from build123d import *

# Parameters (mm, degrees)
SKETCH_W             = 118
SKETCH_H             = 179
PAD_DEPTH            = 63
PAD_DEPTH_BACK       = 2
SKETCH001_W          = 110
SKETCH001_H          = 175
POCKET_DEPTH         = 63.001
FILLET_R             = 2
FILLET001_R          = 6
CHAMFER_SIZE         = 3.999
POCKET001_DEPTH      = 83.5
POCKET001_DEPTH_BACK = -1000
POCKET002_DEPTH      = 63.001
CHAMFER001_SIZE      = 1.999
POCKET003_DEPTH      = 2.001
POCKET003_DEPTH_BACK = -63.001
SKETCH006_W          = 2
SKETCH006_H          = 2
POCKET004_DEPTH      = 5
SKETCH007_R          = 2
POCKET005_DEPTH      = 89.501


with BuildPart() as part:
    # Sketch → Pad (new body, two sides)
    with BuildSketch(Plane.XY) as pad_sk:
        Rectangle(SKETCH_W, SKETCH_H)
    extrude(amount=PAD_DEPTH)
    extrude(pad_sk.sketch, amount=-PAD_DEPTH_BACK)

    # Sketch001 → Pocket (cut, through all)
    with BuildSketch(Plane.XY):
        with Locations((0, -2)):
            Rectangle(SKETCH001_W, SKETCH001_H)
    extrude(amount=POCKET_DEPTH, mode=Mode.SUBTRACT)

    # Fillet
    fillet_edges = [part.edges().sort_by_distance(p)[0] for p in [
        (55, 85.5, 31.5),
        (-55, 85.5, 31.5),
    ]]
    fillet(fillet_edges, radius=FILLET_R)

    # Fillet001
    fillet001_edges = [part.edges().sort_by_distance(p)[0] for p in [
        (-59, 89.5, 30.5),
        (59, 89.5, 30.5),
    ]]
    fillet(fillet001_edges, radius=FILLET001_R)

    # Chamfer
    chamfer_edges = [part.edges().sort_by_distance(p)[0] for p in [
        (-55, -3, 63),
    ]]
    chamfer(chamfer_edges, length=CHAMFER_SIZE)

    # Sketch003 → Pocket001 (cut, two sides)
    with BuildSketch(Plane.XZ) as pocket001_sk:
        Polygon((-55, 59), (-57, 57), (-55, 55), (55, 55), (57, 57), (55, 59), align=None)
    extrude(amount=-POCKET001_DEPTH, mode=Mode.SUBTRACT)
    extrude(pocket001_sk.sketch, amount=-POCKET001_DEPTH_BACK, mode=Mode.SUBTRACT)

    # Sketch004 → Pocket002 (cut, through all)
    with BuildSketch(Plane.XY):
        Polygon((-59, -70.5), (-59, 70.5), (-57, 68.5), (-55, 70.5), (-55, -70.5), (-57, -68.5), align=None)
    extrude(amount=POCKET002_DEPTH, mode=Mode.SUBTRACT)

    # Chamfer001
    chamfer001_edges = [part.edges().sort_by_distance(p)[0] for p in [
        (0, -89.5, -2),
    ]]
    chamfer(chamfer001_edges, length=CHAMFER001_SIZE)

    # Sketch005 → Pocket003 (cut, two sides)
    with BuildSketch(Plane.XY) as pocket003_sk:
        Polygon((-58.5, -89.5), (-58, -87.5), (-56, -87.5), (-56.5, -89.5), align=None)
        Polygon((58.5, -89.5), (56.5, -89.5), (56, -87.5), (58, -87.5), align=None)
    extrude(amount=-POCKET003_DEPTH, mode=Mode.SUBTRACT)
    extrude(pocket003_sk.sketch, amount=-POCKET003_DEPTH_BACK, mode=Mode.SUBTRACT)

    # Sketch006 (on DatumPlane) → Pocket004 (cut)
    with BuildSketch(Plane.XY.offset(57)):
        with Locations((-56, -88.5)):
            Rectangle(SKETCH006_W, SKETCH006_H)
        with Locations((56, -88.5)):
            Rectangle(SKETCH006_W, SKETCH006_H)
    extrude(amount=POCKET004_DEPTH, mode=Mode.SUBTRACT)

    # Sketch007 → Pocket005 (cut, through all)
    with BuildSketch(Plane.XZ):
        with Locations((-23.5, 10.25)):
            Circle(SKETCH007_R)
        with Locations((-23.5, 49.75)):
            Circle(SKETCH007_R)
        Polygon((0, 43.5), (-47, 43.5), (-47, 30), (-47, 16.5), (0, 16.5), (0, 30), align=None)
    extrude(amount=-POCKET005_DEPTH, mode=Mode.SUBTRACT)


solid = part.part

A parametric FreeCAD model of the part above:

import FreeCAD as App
import Part
import Sketcher

V = App.Vector
Q = App.Units.Quantity


def edges_at(feature, points):
    """Names of the edges that pass closest to the given points."""
    edges = feature.Shape.Edges
    near = lambda p: min(range(len(edges)), key=lambda i: edges[i].distToShape(Part.Vertex(*p))[0])
    return sorted({f"Edge{near(p) + 1}" for p in points})

doc = App.newDocument("Part")
body = doc.addObject("PartDesign::Body", "Body")

# Sketch on XY plane
sketch1 = doc.addObject("Sketcher::SketchObject", "Sketch")
body.addObject(sketch1)
sketch1.AttachmentSupport = (doc.XY_Plane, [""])
sketch1.MapMode = "FlatFace"
sketch1.addGeometry([
    Part.LineSegment(V(-59, 90, 0), V(-59, -90, 0)),
    Part.LineSegment(V(-59, -90, 0), V(59, -90, 0)),
    Part.LineSegment(V(59, -90, 0), V(59, 90, 0)),
    Part.LineSegment(V(59, 90, 0), V(-59, 90, 0)),
], False)
sketch1.addConstraint([
    Sketcher.Constraint("Coincident", 0, 2, 1, 1),
    Sketcher.Constraint("Coincident", 1, 2, 2, 1),
    Sketcher.Constraint("Coincident", 2, 2, 3, 1),
    Sketcher.Constraint("Coincident", 3, 2, 0, 1),
    Sketcher.Constraint("Vertical", 0),
    Sketcher.Constraint("Horizontal", 1),
    Sketcher.Constraint("Vertical", 2),
    Sketcher.Constraint("Horizontal", 3),
    Sketcher.Constraint("Symmetric", 0, 2, 2, 2, -1, 1),
    Sketcher.Constraint("DistanceX", 1, 1, 1, 2, Q("118 mm")),
    Sketcher.Constraint("DistanceY", 0, 2, 0, 1, Q("179 mm")),
])
pad1 = doc.addObject("PartDesign::Pad", "Pad")
body.addObject(pad1)
pad1.Profile = sketch1
pad1.Type = "TwoLengths"
pad1.Length = 63
pad1.Length2 = 2

# Sketch on XY plane
sketch2 = doc.addObject("Sketcher::SketchObject", "Sketch001")
body.addObject(sketch2)
sketch2.AttachmentSupport = (doc.XY_Plane, [""])
sketch2.MapMode = "FlatFace"
sketch2.addGeometry([
    Part.LineSegment(V(-55, 86, 0), V(-55, -90, 0)),
    Part.LineSegment(V(-55, -90, 0), V(55, -90, 0)),
    Part.LineSegment(V(55, -90, 0), V(55, 86, 0)),
    Part.LineSegment(V(55, 86, 0), V(-55, 86, 0)),
], False)
sketch2.addConstraint([
    Sketcher.Constraint("Coincident", 0, 2, 1, 1),
    Sketcher.Constraint("Coincident", 1, 2, 2, 1),
    Sketcher.Constraint("Coincident", 2, 2, 3, 1),
    Sketcher.Constraint("Coincident", 3, 2, 0, 1),
    Sketcher.Constraint("Vertical", 0),
    Sketcher.Constraint("Horizontal", 1),
    Sketcher.Constraint("Vertical", 2),
    Sketcher.Constraint("Horizontal", 3),
    Sketcher.Constraint("DistanceX", 1, 1, 1, 2, Q("110 mm")),
    Sketcher.Constraint("DistanceY", 0, 2, 0, 1, Q("175 mm")),
    Sketcher.Constraint("DistanceX", 0, 2, -1, 1, Q("55 mm")),
    Sketcher.Constraint("DistanceY", 0, 2, -1, 1, Q("89.5 mm")),
])
pocket1 = doc.addObject("PartDesign::Pocket", "Pocket")
body.addObject(pocket1)
pocket1.Profile = sketch2
pocket1.Type = "ThroughAll"
pocket1.Reversed = True
doc.recompute()

fillet = doc.addObject("PartDesign::Fillet", "Fillet")
body.addObject(fillet)
fillet.Base = (pocket1, edges_at(pocket1, [(55, 85.5, 31.5), (-55, 85.5, 31.5)]))
fillet.Radius = 2
doc.recompute()

fillet2 = doc.addObject("PartDesign::Fillet", "Fillet001")
body.addObject(fillet2)
fillet2.Base = (fillet, edges_at(fillet, [(-59, 89.5, 30.5), (59, 89.5, 30.5)]))
fillet2.Radius = 6
doc.recompute()

chamfer = doc.addObject("PartDesign::Chamfer", "Chamfer")
body.addObject(chamfer)
chamfer.Base = (fillet2, edges_at(fillet2, [(-55, -3, 63)]))
chamfer.Size = 3.999

# Sketch on XZ plane
sketch3 = doc.addObject("Sketcher::SketchObject", "Sketch002")
body.addObject(sketch3)
sketch3.AttachmentSupport = (doc.XZ_Plane, [""])
sketch3.MapMode = "FlatFace"
sketch3.addGeometry([
    Part.LineSegment(V(-55, 59, 0), V(-57, 57, 0)),  # 0
    Part.LineSegment(V(-57, 57, 0), V(-55, 55, 0)),  # 1
    Part.LineSegment(V(-55, 55, 0), V(55, 55, 0)),  # 2
    Part.LineSegment(V(55, 55, 0), V(57, 57, 0)),  # 3
    Part.LineSegment(V(57, 57, 0), V(55, 59, 0)),  # 4
    Part.LineSegment(V(55, 59, 0), V(-55, 59, 0)),  # 5
], False)
sketch3.addConstraint([
    Sketcher.Constraint("Coincident", 0, 2, 1, 1),
    Sketcher.Constraint("Coincident", 1, 2, 2, 1),
    Sketcher.Constraint("Coincident", 2, 2, 3, 1),
    Sketcher.Constraint("Coincident", 3, 2, 4, 1),
    Sketcher.Constraint("Coincident", 4, 2, 5, 1),
    Sketcher.Constraint("Coincident", 5, 2, 0, 1),
    Sketcher.Constraint("Horizontal", 2),
    Sketcher.Constraint("Horizontal", 5),
    Sketcher.Constraint("Symmetric", 0, 2, 3, 2, -2),
    Sketcher.Constraint("Perpendicular", 0, 1),
    Sketcher.Constraint("Perpendicular", 1, 3),
    Sketcher.Constraint("Perpendicular", 3, 4),
    Sketcher.Constraint("Vertical", 2, 2, 4, 2),
    Sketcher.Constraint("Vertical", 1, 2, 5, 2),
    Sketcher.Constraint("DistanceX", 2, 1, 2, 2, Q("110 mm")),
    Sketcher.Constraint("DistanceX", 0, 2, -1, 1, Q("57 mm")),
    Sketcher.Constraint("DistanceY", -1, 1, 0, 2, Q("57 mm")),
])
pocket2 = doc.addObject("PartDesign::Pocket", "Pocket001")
body.addObject(pocket2)
pocket2.Profile = sketch3
pocket2.Type = "TwoLengths"
pocket2.Length = 83.5
pocket2.Length2 = 1000

# Sketch on XY plane
sketch4 = doc.addObject("Sketcher::SketchObject", "Sketch003")
body.addObject(sketch4)
sketch4.AttachmentSupport = (doc.XY_Plane, [""])
sketch4.MapMode = "FlatFace"
sketch4.addGeometry([
    Part.LineSegment(V(-59, 70.5, 0), V(-59, -70.5, 0)),  # 0
    Part.LineSegment(V(-59, -70.5, 0), V(-57, -68.5, 0)),  # 1
    Part.LineSegment(V(-57, -68.5, 0), V(-55, -70.5, 0)),  # 2
    Part.LineSegment(V(-55, -70.5, 0), V(-55, 70.5, 0)),  # 3
    Part.LineSegment(V(-55, 70.5, 0), V(-57, 68.5, 0)),  # 4
    Part.LineSegment(V(-57, 68.5, 0), V(-59, 70.5, 0)),  # 5
], False)
sketch4.addConstraint([
    Sketcher.Constraint("Coincident", 0, 2, 1, 1),
    Sketcher.Constraint("Coincident", 1, 2, 2, 1),
    Sketcher.Constraint("Coincident", 2, 2, 3, 1),
    Sketcher.Constraint("Coincident", 3, 2, 4, 1),
    Sketcher.Constraint("Coincident", 4, 2, 5, 1),
    Sketcher.Constraint("Coincident", 5, 2, 0, 1),
    Sketcher.Constraint("Vertical", 0),
    Sketcher.Constraint("Vertical", 3),
    Sketcher.Constraint("Symmetric", 1, 2, 4, 2, -1),
    Sketcher.Constraint("Perpendicular", 1, 2),
    Sketcher.Constraint("Perpendicular", 2, 4),
    Sketcher.Constraint("Perpendicular", 4, 5),
    Sketcher.Constraint("Horizontal", 0, 2, 2, 2),
    Sketcher.Constraint("Horizontal", 3, 2, 5, 2),
    Sketcher.Constraint("DistanceY", 0, 2, 0, 1, Q("141 mm")),
    Sketcher.Constraint("DistanceX", 0, 2, -1, 1, Q("59 mm")),
    Sketcher.Constraint("DistanceX", 1, 2, -1, 1, Q("57 mm")),
])
pocket3 = doc.addObject("PartDesign::Pocket", "Pocket002")
body.addObject(pocket3)
pocket3.Profile = sketch4
pocket3.Type = "ThroughAll"
pocket3.Reversed = True
doc.recompute()

chamfer2 = doc.addObject("PartDesign::Chamfer", "Chamfer001")
body.addObject(chamfer2)
chamfer2.Base = (pocket3, edges_at(pocket3, [(0, -89.5, -2)]))
chamfer2.Size = 1.999

# Sketch on XY plane
sketch5 = doc.addObject("Sketcher::SketchObject", "Sketch004")
body.addObject(sketch5)
sketch5.AttachmentSupport = (doc.XY_Plane, [""])
sketch5.MapMode = "FlatFace"
sketch5.addGeometry([
    Part.LineSegment(V(-58, -87.5, 0), V(-58.5, -89.5, 0)),  # 0
    Part.LineSegment(V(-58.5, -89.5, 0), V(-56.5, -89.5, 0)),  # 1
    Part.LineSegment(V(-56.5, -89.5, 0), V(-56, -87.5, 0)),  # 2
    Part.LineSegment(V(-56, -87.5, 0), V(-58, -87.5, 0)),  # 3
    Part.LineSegment(V(56.5, -89.5, 0), V(58.5, -89.5, 0)),  # 4
    Part.LineSegment(V(58.5, -89.5, 0), V(58, -87.5, 0)),  # 5
    Part.LineSegment(V(58, -87.5, 0), V(56, -87.5, 0)),  # 6
    Part.LineSegment(V(56, -87.5, 0), V(56.5, -89.5, 0)),  # 7
], False)
sketch5.addConstraint([
    Sketcher.Constraint("Coincident", 0, 2, 1, 1),
    Sketcher.Constraint("Coincident", 1, 2, 2, 1),
    Sketcher.Constraint("Coincident", 2, 2, 3, 1),
    Sketcher.Constraint("Coincident", 3, 2, 0, 1),
    Sketcher.Constraint("Coincident", 4, 2, 5, 1),
    Sketcher.Constraint("Coincident", 5, 2, 6, 1),
    Sketcher.Constraint("Coincident", 6, 2, 7, 1),
    Sketcher.Constraint("Coincident", 7, 2, 4, 1),
    Sketcher.Constraint("Horizontal", 1),
    Sketcher.Constraint("Horizontal", 3),
    Sketcher.Constraint("Horizontal", 4),
    Sketcher.Constraint("Horizontal", 6),
    Sketcher.Constraint("Symmetric", 0, 2, 4, 2, -2),
    Sketcher.Constraint("Symmetric", 3, 2, 5, 2, -2),
    Sketcher.Constraint("Parallel", 0, 2),
    Sketcher.Constraint("Parallel", 5, 7),
    Sketcher.Constraint("Equal", 3, 4),
    Sketcher.Constraint("DistanceX", 1, 1, 1, 2, Q("2 mm")),
    Sketcher.Constraint("DistanceX", 2, 2, -1, 1, Q("56 mm")),
    Sketcher.Constraint("DistanceY", 1, 2, 2, 2, Q("2 mm")),
    Sketcher.Constraint("DistanceX", 1, 2, 4, 2, Q("115 mm")),
    Sketcher.Constraint("DistanceY", 0, 2, -1, 1, Q("89.5 mm")),
])
pocket4 = doc.addObject("PartDesign::Pocket", "Pocket003")
body.addObject(pocket4)
pocket4.Profile = sketch5
pocket4.Type = "ThroughAll"
pocket4.Midplane = True

# Sketch on XY plane
sketch6 = doc.addObject("Sketcher::SketchObject", "Sketch005")
body.addObject(sketch6)
sketch6.AttachmentSupport = (doc.XY_Plane, [""])
sketch6.MapMode = "FlatFace"
sketch6.AttachmentOffset = App.Placement(V(0, 0, 57), App.Rotation())
sketch6.addGeometry([
    Part.LineSegment(V(-57, -87.5, 0), V(-57, -89.5, 0)),  # 0
    Part.LineSegment(V(-57, -89.5, 0), V(-55, -89.5, 0)),  # 1
    Part.LineSegment(V(-55, -89.5, 0), V(-55, -87.5, 0)),  # 2
    Part.LineSegment(V(-55, -87.5, 0), V(-57, -87.5, 0)),  # 3
    Part.LineSegment(V(55, -87.5, 0), V(55, -89.5, 0)),  # 4
    Part.LineSegment(V(55, -89.5, 0), V(57, -89.5, 0)),  # 5
    Part.LineSegment(V(57, -89.5, 0), V(57, -87.5, 0)),  # 6
    Part.LineSegment(V(57, -87.5, 0), V(55, -87.5, 0)),  # 7
], False)
sketch6.addConstraint([
    Sketcher.Constraint("Coincident", 0, 2, 1, 1),
    Sketcher.Constraint("Coincident", 1, 2, 2, 1),
    Sketcher.Constraint("Coincident", 2, 2, 3, 1),
    Sketcher.Constraint("Coincident", 3, 2, 0, 1),
    Sketcher.Constraint("Coincident", 4, 2, 5, 1),
    Sketcher.Constraint("Coincident", 5, 2, 6, 1),
    Sketcher.Constraint("Coincident", 6, 2, 7, 1),
    Sketcher.Constraint("Coincident", 7, 2, 4, 1),
    Sketcher.Constraint("Vertical", 0),
    Sketcher.Constraint("Horizontal", 1),
    Sketcher.Constraint("Vertical", 2),
    Sketcher.Constraint("Horizontal", 3),
    Sketcher.Constraint("Vertical", 4),
    Sketcher.Constraint("Horizontal", 5),
    Sketcher.Constraint("Vertical", 6),
    Sketcher.Constraint("Horizontal", 7),
    Sketcher.Constraint("Symmetric", 1, 2, 4, 2, -2),
    Sketcher.Constraint("Symmetric", 3, 2, 6, 2, -2),
    Sketcher.Constraint("Equal", 7, 0),
    Sketcher.Constraint("DistanceX", 1, 1, 1, 2, Q("2 mm")),
    Sketcher.Constraint("DistanceX", 0, 2, -1, 1, Q("57 mm")),
    Sketcher.Constraint("DistanceY", 0, 2, -1, 1, Q("89.5 mm")),
])
pocket5 = doc.addObject("PartDesign::Pocket", "Pocket004")
body.addObject(pocket5)
pocket5.Profile = sketch6
pocket5.Length = 5
pocket5.Reversed = True

# Sketch on XZ plane
sketch7 = doc.addObject("Sketcher::SketchObject", "Sketch006")
body.addObject(sketch7)
sketch7.AttachmentSupport = (doc.XZ_Plane, [""])
sketch7.MapMode = "FlatFace"
sketch7.addGeometry([
    Part.Circle(V(-23.5, 10.2, 0), V(0, 0, 1), 2),  # 0
    Part.Circle(V(-23.5, 49.8, 0), V(0, 0, 1), 2),  # 1
    Part.LineSegment(V(0, 43.5, 0), V(-47, 43.5, 0)),  # 2
    Part.LineSegment(V(-47, 43.5, 0), V(-47, 16.5, 0)),  # 3
    Part.LineSegment(V(-47, 16.5, 0), V(0, 16.5, 0)),  # 4
    Part.LineSegment(V(0, 16.5, 0), V(0, 43.5, 0)),  # 5
], False)
sketch7.addConstraint([
    Sketcher.Constraint("Coincident", 2, 2, 3, 1),
    Sketcher.Constraint("Coincident", 3, 2, 4, 1),
    Sketcher.Constraint("Coincident", 4, 2, 5, 1),
    Sketcher.Constraint("Coincident", 5, 2, 2, 1),
    Sketcher.Constraint("Horizontal", 2),
    Sketcher.Constraint("Vertical", 3),
    Sketcher.Constraint("Horizontal", 4),
    Sketcher.Constraint("Vertical", 5),
    Sketcher.Constraint("Equal", 0, 1),
    Sketcher.Constraint("PointOnObject", 4, 2, -2),
    Sketcher.Constraint("Vertical", 0, 3, 1, 3),
    Sketcher.Constraint("Diameter", 0, Q("4 mm")),
    Sketcher.Constraint("DistanceX", 2, 2, 2, 1, Q("47 mm")),
    Sketcher.Constraint("DistanceY", 3, 2, 3, 1, Q("27 mm")),
    Sketcher.Constraint("DistanceX", 0, 3, -1, 1, Q("23.5 mm")),
    Sketcher.Constraint("DistanceY", -1, 1, 2, 2, Q("43.5 mm")),
    Sketcher.Constraint("DistanceY", 0, 3, 1, 3, Q("39.5 mm")),
    Sketcher.Constraint("DistanceY", -1, 1, 0, 3, Q("10.25 mm")),
])
pocket6 = doc.addObject("PartDesign::Pocket", "Pocket005")
body.addObject(pocket6)
pocket6.Profile = sketch7
pocket6.Type = "ThroughAll"

doc.recompute()
